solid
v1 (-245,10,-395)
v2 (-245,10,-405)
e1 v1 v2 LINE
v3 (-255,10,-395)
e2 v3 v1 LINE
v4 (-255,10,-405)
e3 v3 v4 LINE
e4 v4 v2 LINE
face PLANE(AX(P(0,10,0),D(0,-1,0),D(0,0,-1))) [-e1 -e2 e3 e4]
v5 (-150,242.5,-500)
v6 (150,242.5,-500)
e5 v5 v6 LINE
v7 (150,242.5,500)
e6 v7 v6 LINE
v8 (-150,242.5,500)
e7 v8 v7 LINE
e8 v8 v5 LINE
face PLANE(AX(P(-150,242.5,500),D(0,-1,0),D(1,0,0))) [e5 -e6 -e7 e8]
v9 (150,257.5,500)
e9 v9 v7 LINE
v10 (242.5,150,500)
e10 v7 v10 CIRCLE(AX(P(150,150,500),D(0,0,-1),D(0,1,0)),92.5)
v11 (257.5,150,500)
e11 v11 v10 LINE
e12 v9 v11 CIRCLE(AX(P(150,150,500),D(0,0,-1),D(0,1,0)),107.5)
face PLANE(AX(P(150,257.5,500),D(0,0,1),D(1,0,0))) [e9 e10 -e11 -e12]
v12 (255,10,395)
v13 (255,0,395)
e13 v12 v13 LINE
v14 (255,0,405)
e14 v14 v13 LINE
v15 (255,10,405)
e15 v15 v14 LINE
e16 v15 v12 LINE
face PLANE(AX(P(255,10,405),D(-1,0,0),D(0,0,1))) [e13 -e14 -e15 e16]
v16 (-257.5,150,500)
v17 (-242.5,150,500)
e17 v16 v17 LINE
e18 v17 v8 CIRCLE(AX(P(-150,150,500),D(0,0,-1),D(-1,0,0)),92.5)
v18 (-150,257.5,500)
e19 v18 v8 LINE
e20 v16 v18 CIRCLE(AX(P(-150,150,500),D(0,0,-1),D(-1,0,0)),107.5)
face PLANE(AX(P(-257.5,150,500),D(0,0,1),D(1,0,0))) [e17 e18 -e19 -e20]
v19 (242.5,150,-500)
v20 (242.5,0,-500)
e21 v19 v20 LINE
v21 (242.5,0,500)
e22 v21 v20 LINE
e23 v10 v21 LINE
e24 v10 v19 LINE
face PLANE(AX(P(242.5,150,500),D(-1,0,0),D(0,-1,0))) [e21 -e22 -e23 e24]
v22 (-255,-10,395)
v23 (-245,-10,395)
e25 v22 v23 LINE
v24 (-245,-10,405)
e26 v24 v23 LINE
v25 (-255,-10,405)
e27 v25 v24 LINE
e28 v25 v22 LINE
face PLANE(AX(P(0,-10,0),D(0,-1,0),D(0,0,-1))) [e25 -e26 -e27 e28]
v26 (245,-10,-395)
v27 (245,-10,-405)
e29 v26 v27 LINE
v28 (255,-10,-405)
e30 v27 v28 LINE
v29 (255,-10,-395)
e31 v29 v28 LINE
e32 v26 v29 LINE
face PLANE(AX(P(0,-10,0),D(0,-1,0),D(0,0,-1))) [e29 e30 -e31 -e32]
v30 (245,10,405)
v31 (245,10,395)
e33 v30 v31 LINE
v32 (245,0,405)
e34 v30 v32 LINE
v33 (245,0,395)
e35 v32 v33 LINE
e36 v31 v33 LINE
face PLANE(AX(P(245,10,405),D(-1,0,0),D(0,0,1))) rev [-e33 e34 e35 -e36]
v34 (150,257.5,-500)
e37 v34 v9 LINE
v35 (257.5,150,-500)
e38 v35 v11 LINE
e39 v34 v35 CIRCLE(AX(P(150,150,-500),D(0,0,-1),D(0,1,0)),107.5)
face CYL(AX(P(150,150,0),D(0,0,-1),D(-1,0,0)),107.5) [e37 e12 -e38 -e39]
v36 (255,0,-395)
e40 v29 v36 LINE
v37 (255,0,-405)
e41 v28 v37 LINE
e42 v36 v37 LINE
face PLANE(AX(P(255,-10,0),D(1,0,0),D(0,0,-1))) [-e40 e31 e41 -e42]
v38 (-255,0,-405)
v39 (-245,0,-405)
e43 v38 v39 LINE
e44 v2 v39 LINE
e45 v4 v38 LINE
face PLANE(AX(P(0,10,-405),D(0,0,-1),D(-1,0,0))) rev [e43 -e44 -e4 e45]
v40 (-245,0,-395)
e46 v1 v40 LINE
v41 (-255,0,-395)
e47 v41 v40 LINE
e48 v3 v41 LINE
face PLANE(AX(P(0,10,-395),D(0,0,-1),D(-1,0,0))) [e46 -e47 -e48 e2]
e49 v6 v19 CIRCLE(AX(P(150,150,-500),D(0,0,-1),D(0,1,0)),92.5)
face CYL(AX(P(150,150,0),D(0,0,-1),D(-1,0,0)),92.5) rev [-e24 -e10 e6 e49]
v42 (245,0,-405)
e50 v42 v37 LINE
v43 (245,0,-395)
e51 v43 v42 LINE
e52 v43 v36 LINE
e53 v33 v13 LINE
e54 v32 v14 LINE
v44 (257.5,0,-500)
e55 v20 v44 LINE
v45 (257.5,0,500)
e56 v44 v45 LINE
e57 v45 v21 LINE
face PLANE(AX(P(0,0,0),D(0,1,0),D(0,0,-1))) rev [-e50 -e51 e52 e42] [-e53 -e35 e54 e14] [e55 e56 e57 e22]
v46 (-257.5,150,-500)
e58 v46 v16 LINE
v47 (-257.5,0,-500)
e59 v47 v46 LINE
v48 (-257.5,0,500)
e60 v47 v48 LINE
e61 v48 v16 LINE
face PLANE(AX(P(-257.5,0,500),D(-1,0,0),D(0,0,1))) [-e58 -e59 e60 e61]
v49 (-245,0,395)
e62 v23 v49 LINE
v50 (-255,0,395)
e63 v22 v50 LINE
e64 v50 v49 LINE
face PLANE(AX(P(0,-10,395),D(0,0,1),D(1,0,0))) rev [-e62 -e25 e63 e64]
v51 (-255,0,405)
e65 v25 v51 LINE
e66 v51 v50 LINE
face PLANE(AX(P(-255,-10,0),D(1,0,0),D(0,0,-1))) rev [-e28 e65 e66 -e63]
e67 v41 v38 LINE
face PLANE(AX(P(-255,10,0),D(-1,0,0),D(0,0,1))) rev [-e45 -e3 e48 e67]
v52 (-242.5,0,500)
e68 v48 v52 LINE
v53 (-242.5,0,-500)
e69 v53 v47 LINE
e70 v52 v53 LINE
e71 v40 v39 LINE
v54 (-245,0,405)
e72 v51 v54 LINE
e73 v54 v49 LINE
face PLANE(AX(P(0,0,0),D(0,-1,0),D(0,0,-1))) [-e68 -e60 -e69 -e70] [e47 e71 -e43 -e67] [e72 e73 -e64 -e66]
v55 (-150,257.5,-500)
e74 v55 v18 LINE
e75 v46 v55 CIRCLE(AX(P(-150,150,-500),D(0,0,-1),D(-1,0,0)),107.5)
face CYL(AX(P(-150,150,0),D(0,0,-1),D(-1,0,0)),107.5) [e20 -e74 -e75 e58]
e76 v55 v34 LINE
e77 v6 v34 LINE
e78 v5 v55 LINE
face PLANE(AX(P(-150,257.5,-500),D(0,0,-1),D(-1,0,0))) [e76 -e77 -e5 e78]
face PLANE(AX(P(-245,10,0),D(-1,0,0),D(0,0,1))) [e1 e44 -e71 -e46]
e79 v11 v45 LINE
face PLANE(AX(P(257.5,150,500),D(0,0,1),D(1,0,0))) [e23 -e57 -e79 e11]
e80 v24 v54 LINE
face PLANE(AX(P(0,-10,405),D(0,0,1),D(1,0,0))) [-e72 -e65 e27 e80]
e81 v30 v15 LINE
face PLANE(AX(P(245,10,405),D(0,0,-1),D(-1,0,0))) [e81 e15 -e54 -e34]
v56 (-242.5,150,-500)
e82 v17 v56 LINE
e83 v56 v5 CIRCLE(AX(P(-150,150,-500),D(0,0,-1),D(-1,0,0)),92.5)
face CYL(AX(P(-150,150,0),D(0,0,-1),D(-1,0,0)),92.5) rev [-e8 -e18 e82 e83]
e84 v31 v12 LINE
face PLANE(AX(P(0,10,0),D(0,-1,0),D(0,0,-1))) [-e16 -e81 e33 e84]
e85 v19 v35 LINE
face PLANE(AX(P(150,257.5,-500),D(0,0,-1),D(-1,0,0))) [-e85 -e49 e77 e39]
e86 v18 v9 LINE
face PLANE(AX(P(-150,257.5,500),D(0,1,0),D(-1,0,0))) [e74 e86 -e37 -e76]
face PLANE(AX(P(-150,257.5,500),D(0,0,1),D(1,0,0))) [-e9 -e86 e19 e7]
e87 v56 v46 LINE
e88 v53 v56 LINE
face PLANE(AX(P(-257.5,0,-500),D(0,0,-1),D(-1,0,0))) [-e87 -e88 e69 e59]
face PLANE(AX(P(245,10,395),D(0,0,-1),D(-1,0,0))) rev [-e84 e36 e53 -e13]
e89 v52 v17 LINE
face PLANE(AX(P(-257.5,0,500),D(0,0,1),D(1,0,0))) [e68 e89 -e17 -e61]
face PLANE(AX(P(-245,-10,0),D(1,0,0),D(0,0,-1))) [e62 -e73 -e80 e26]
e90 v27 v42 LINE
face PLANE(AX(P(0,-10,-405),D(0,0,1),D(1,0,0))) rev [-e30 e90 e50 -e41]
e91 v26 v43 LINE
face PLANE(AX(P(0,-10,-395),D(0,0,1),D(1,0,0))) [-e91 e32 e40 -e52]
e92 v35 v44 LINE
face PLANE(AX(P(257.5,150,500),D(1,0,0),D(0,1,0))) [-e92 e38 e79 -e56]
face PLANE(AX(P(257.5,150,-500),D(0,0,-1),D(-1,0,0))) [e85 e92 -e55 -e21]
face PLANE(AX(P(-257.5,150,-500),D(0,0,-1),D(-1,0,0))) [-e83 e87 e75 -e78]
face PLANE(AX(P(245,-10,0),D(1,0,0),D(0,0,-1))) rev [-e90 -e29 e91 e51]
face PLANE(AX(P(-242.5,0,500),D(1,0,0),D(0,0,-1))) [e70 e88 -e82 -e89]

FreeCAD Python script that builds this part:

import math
import FreeCAD as App
import Part
import Sketcher
from FreeCAD import Vector


def add_polygon(sketch, points):
    """Adds a closed chain of lines whose ends are joined by coincident constraints."""
    first, n = sketch.GeometryCount, len(points)
    for a, b in zip(points, points[1:] + points[:1]):
        sketch.addGeometry(Part.LineSegment(App.Vector(*a, 0), App.Vector(*b, 0)), False)
    for i in range(n):
        sketch.addConstraint(Sketcher.Constraint("Coincident", first + i, 2, first + (i + 1) % n, 1))

doc = App.newDocument("Part")
body = doc.addObject("PartDesign::Body", "Body")

# Sketch on XZ plane
sketch1 = body.newObject("Sketcher::SketchObject", "Sketch")
sketch1.AttachmentSupport = (doc.getObject("XZ_Plane"), [""])
sketch1.MapMode = "FlatFace"
add_polygon(sketch1, [(-258, -500), (-258, 500), (-242, 500), (-242, -500)])  # lines 0-3
sketch1.addConstraint([
    Sketcher.Constraint("Vertical", 0),
    Sketcher.Constraint("Horizontal", 1),
    Sketcher.Constraint("Vertical", 2),
    Sketcher.Constraint("Horizontal", 3),
    Sketcher.Constraint("DistanceX", 1, 1, 1, 2, 15.0),
    Sketcher.Constraint("DistanceY", 0, 1, 0, 2, 1000.0),
    Sketcher.Constraint("DistanceY", -1, 1, 0, 2, 500.0),
    Sketcher.Constraint("DistanceX", 0, 2, -1, 1, 257.5),
])

# Sketch on XY plane
sketch2 = body.newObject("Sketcher::SketchObject", "Sketch001")
sketch2.AttachmentSupport = (doc.getObject("XY_Plane"), [""])
sketch2.MapMode = "FlatFace"
sketch2.addGeometry([
    Part.LineSegment(Vector(-250, 0, 0), Vector(-250, 150, 0)),  # 0
    Part.ArcOfCircle(Part.Circle(Vector(-150, 150, 0), Vector(0, 0, 1), 100), math.radians(90), math.radians(180)),  # 1
    Part.LineSegment(Vector(-150, 250, 0), Vector(150, 250, 0)),  # 2
    Part.ArcOfCircle(Part.Circle(Vector(150, 150, 0), Vector(0, 0, 1), 100), math.radians(0), math.radians(90)),  # 3
    Part.LineSegment(Vector(250, 150, 0), Vector(250, 0, 0)),  # 4
], False)
sketch2.addConstraint([
    Sketcher.Constraint("Tangent", 0, 2, 1, 2),
    Sketcher.Constraint("Tangent", 1, 1, 2, 1),
    Sketcher.Constraint("Tangent", 2, 2, 3, 2),
    Sketcher.Constraint("Tangent", 3, 1, 4, 1),
    Sketcher.Constraint("Vertical", 0),
    Sketcher.Constraint("Horizontal", 2),
    Sketcher.Constraint("Vertical", 4),
    Sketcher.Constraint("Equal", 1, 3),
    Sketcher.Constraint("Symmetric", 0, 1, 4, 2, -1, 1),
    Sketcher.Constraint("PointOnObject", 0, 1, -1),
    Sketcher.Constraint("Radius", 1, 100.0),
    Sketcher.Constraint("DistanceX", 2, 1, 2, 2, 300.0),
    Sketcher.Constraint("DistanceY", 0, 1, 0, 2, 150.0),
])
doc.recompute()

additivepipe = body.newObject("PartDesign::AdditivePipe", "AdditivePipe")
additivepipe.Profile = sketch1
additivepipe.Spine = (sketch2, ["Edge1", "Edge2", "Edge3", "Edge4", "Edge5"])

# Sketch on XZ plane
sketch3 = body.newObject("Sketcher::SketchObject", "Sketch002")
sketch3.AttachmentSupport = (doc.getObject("XZ_Plane"), [""])
sketch3.MapMode = "FlatFace"
add_polygon(sketch3, [(-255, 405), (-255, 395), (-245, 395), (-245, 405)])  # lines 0-3
add_polygon(sketch3, [(245, -395), (245, -405), (255, -405), (255, -395)])  # lines 4-7
sketch3.addConstraint([
    Sketcher.Constraint("Vertical", 0),
    Sketcher.Constraint("Horizontal", 1),
    Sketcher.Constraint("Vertical", 2),
    Sketcher.Constraint("Horizontal", 3),
    Sketcher.Constraint("Vertical", 4),
    Sketcher.Constraint("Horizontal", 5),
    Sketcher.Constraint("Vertical", 6),
    Sketcher.Constraint("Horizontal", 7),
    Sketcher.Constraint("Symmetric", 2, 2, 4, 2, -1, 1),
    Sketcher.Constraint("Symmetric", 0, 2, 6, 2, -1, 1),
    Sketcher.Constraint("Equal", 7, 0),
    Sketcher.Constraint("DistanceX", 1, 1, 1, 2, 10.0),
    Sketcher.Constraint("DistanceX", 0, 2, -1, 1, 255.0),
    Sketcher.Constraint("DistanceY", -1, 1, 0, 2, 395.0),
])
pad1 = body.newObject("PartDesign::Pad", "Pad")
pad1.Profile = sketch3
pad1.Length = 10

# Sketch on XZ plane
sketch4 = body.newObject("Sketcher::SketchObject", "Sketch003")
sketch4.AttachmentSupport = (doc.getObject("XZ_Plane"), [""])
sketch4.MapMode = "FlatFace"
add_polygon(sketch4, [(-255, -395), (-255, -405), (-245, -405), (-245, -395)])  # lines 0-3
add_polygon(sketch4, [(245, 405), (245, 395), (255, 395), (255, 405)])  # lines 4-7
sketch4.addConstraint([
    Sketcher.Constraint("Vertical", 0),
    Sketcher.Constraint("Horizontal", 1),
    Sketcher.Constraint("Vertical", 2),
    Sketcher.Constraint("Horizontal", 3),
    Sketcher.Constraint("Vertical", 4),
    Sketcher.Constraint("Horizontal", 5),
    Sketcher.Constraint("Vertical", 6),
    Sketcher.Constraint("Horizontal", 7),
    Sketcher.Constraint("Symmetric", 2, 2, 4, 2, -1, 1),
    Sketcher.Constraint("Symmetric", 0, 2, 6, 2, -1, 1),
    Sketcher.Constraint("Equal", 7, 0),
    Sketcher.Constraint("DistanceX", 1, 1, 1, 2, 10.0),
    Sketcher.Constraint("DistanceX", 0, 2, -1, 1, 255.0),
    Sketcher.Constraint("DistanceY", 0, 2, -1, 1, 405.0),
])
pocket1 = body.newObject("PartDesign::Pocket", "Pocket")
pocket1.Profile = sketch4
pocket1.Length = 10

doc.recompute()
